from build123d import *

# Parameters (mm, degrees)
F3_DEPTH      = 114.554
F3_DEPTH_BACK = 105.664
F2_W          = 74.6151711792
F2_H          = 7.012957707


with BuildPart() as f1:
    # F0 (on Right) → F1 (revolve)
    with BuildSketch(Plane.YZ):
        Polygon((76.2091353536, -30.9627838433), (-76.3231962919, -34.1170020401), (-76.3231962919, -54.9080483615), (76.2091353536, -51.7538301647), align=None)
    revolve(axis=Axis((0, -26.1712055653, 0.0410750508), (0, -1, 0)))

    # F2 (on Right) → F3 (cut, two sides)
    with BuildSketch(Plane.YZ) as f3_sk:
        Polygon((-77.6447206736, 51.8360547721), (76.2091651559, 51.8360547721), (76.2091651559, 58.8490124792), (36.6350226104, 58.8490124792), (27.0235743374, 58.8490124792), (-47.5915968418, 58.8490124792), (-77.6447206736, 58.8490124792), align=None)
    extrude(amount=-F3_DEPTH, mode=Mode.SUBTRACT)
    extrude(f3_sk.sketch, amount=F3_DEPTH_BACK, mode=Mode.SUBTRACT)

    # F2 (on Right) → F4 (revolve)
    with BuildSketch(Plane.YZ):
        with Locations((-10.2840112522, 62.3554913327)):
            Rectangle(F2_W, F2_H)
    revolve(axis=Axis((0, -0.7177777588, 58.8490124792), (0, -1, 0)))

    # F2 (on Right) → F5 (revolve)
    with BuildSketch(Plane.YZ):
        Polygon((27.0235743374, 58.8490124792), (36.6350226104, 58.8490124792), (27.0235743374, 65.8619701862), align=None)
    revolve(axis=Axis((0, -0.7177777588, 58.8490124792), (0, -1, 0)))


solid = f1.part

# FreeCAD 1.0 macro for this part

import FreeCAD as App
import Part
import Sketcher

doc = App.newDocument("Part")
body = doc.addObject("PartDesign::Body", "Body")
body.AllowCompound = True

# Sketch on YZ plane
sketch1 = body.newObject("Sketcher::SketchObject", "Sketch")
sketch1.AttachmentSupport = (doc.getObject("YZ_Plane"), [""])
sketch1.MapMode = "FlatFace"
sketch1.addGeometry([
    Part.LineSegment(App.Vector(76.209135, -30.962784, 0), App.Vector(-76.323196, -34.117002, 0)),
    Part.LineSegment(App.Vector(-76.323196, -34.117002, 0), App.Vector(-76.323196, -54.908048, 0)),
    Part.LineSegment(App.Vector(-76.323196, -54.908048, 0), App.Vector(76.209135, -51.75383, 0)),
    Part.LineSegment(App.Vector(76.209135, -51.75383, 0), App.Vector(76.209135, -30.962784, 0)),
], False)
sketch1.addGeometry(Part.LineSegment(App.Vector(76.209135, 0.041075, 0), App.Vector(-76.323196, 0.041075, 0)), True)  # axis
sketch1.addConstraint([
    Sketcher.Constraint("Coincident", 0, 2, 1, 1),
    Sketcher.Constraint("Coincident", 1, 2, 2, 1),
    Sketcher.Constraint("Coincident", 2, 2, 3, 1),
    Sketcher.Constraint("Coincident", 3, 2, 0, 1),
    Sketcher.Constraint("Vertical", 1),
    Sketcher.Constraint("Vertical", 3),
    Sketcher.Constraint("Horizontal", 4),
    Sketcher.Constraint("DistanceX", 4, 2, 4, 1, 152.532332),
    Sketcher.Constraint("Distance", 0, 152.564941),
    Sketcher.Constraint("Distance", 2, 152.564941),
    Sketcher.Constraint("DistanceY", 1, 2, 1, 1, 20.791046),
    Sketcher.Constraint("DistanceY", 1, 2, -1, 1, 54.908048),
    Sketcher.Constraint("DistanceY", 2, 2, -1, 1, 51.75383),
    Sketcher.Constraint("DistanceY", 3, 2, 4, 1, 31.003859),
    Sketcher.Constraint("DistanceX", 0, 2, 4, 1, 152.532332),
    Sketcher.Constraint("DistanceX", 0, 2, -1, 1, 76.323196),
])
revolution = body.newObject("PartDesign::Revolution", "Revolution")
revolution.Profile = sketch1
revolution.ReferenceAxis = (sketch1, ["Axis0"])
revolution.Angle = 360

# Sketch on YZ plane
sketch2 = body.newObject("Sketcher::SketchObject", "Sketch001")
sketch2.AttachmentSupport = (doc.getObject("YZ_Plane"), [""])
sketch2.MapMode = "FlatFace"
sketch2.addGeometry([
    Part.LineSegment(App.Vector(-78, 52, 0), App.Vector(76, 52, 0)),
    Part.LineSegment(App.Vector(76, 52, 0), App.Vector(76, 59, 0)),
    Part.LineSegment(App.Vector(76, 59, 0), App.Vector(-78, 59, 0)),
    Part.LineSegment(App.Vector(-78, 59, 0), App.Vector(-78, 52, 0)),
], False)
sketch2.addConstraint([
    Sketcher.Constraint("Coincident", 0, 2, 1, 1),
    Sketcher.Constraint("Coincident", 1, 2, 2, 1),
    Sketcher.Constraint("Coincident", 2, 2, 3, 1),
    Sketcher.Constraint("Coincident", 3, 2, 0, 1),
    Sketcher.Constraint("Horizontal", 0),
    Sketcher.Constraint("Vertical", 1),
    Sketcher.Constraint("Horizontal", 2),
    Sketcher.Constraint("Vertical", 3),
    Sketcher.Constraint("DistanceX", 0, 1, 0, 2, 153.853886),
    Sketcher.Constraint("DistanceY", 1, 1, 1, 2, 7.012958),
    Sketcher.Constraint("DistanceX", 2, 2, -1, 1, 77.644721),
    Sketcher.Constraint("DistanceY", -1, 1, 0, 2, 51.836055),
])
pocket1 = body.newObject("PartDesign::Pocket", "Pocket")
pocket1.Profile = sketch2
pocket1.Type = "ThroughAll"
pocket1.Midplane = True

# Sketch on YZ plane
sketch3 = body.newObject("Sketcher::SketchObject", "Sketch002")
sketch3.AttachmentSupport = (doc.getObject("YZ_Plane"), [""])
sketch3.MapMode = "FlatFace"
sketch3.addGeometry([
    Part.LineSegment(App.Vector(-48, 66, 0), App.Vector(-48, 59, 0)),
    Part.LineSegment(App.Vector(-48, 59, 0), App.Vector(27, 59, 0)),
    Part.LineSegment(App.Vector(27, 59, 0), App.Vector(27, 66, 0)),
    Part.LineSegment(App.Vector(27, 66, 0), App.Vector(-48, 66, 0)),
], False)
sketch3.addGeometry(Part.LineSegment(App.Vector(27, 59, 0), App.Vector(-48, 59, 0)), True)  # axis
sketch3.addConstraint([
    Sketcher.Constraint("Coincident", 0, 2, 1, 1),
    Sketcher.Constraint("Coincident", 1, 2, 2, 1),
    Sketcher.Constraint("Coincident", 2, 2, 3, 1),
    Sketcher.Constraint("Coincident", 3, 2, 0, 1),
    Sketcher.Constraint("Vertical", 0),
    Sketcher.Constraint("Horizontal", 1),
    Sketcher.Constraint("Vertical", 2),
    Sketcher.Constraint("Horizontal", 3),
    Sketcher.Constraint("Horizontal", 4),
    Sketcher.Constraint("Coincident", 4, 1, 1, 2),
    Sketcher.Constraint("Vertical", 3, 2, 4, 2),
    Sketcher.Constraint("DistanceX", 1, 1, 1, 2, 74.615171),
    Sketcher.Constraint("DistanceY", 0, 2, 0, 1, 7.012958),
    Sketcher.Constraint("DistanceY", -1, 1, 2, 2, 65.86197),
    Sketcher.Constraint("DistanceX", 0, 2, -1, 1, 47.591597),
])
revolution2 = body.newObject("PartDesign::Revolution", "Revolution001")
revolution2.Profile = sketch3
revolution2.ReferenceAxis = (sketch3, ["Axis0"])
revolution2.Angle = 360

# Sketch on YZ plane
sketch4 = body.newObject("Sketcher::SketchObject", "Sketch003")
sketch4.AttachmentSupport = (doc.getObject("YZ_Plane"), [""])
sketch4.MapMode = "FlatFace"
sketch4.addGeometry([
    Part.LineSegment(App.Vector(27, 59, 0), App.Vector(37, 59, 0)),
    Part.LineSegment(App.Vector(37, 59, 0), App.Vector(27, 66, 0)),
    Part.LineSegment(App.Vector(27, 66, 0), App.Vector(27, 59, 0)),
], False)
sketch4.addGeometry(Part.LineSegment(App.Vector(37, 59, 0), App.Vector(27, 59, 0)), True)  # axis
sketch4.addConstraint([
    Sketcher.Constraint("Coincident", 0, 2, 1, 1),
    Sketcher.Constraint("Coincident", 1, 2, 2, 1),
    Sketcher.Constraint("Coincident", 2, 2, 0, 1),
    Sketcher.Constraint("Horizontal", 0),
    Sketcher.Constraint("Vertical", 2),
    Sketcher.Constraint("Horizontal", 3),
    Sketcher.Constraint("Coincident", 3, 1, 0, 2),
    Sketcher.Constraint("Vertical", 1, 2, 3, 2),
    Sketcher.Constraint("DistanceX", 0, 1, 0, 2, 9.611448),
    Sketcher.Constraint("DistanceY", 2, 2, 2, 1, 7.012958),
    Sketcher.Constraint("DistanceY", -1, 1, 1, 2, 65.86197),
    Sketcher.Constraint("DistanceX", -1, 1, 0, 2, 36.635023),
])
revolution3 = body.newObject("PartDesign::Revolution", "Revolution002")
revolution3.Profile = sketch4
revolution3.ReferenceAxis = (sketch4, ["Axis0"])
revolution3.Angle = 360

doc.recompute()
